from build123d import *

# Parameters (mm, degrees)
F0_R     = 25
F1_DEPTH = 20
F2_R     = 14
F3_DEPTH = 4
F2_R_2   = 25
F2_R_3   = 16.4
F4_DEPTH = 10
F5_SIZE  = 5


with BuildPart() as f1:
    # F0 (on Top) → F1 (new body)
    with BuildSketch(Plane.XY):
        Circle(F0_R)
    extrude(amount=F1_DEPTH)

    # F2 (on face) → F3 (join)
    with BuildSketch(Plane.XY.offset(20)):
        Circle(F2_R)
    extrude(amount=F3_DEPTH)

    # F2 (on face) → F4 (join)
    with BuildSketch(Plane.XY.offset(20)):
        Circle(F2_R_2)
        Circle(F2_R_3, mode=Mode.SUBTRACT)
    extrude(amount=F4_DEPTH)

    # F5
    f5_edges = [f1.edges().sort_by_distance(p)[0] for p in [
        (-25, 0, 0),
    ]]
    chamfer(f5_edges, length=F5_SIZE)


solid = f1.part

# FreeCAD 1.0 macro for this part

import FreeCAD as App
import Part
import Sketcher
Q = App.Units.Quantity


def edges_at(feature, points):
    """Names of the edges that pass closest to the given points."""
    edges = feature.Shape.Edges
    near = lambda p: min(range(len(edges)), key=lambda i: edges[i].distToShape(Part.Vertex(*p))[0])
    return sorted({f"Edge{near(p) + 1}" for p in points})

doc = App.newDocument("Part")
body = doc.addObject("PartDesign::Body", "Body")

sketch1 = body.newObject("Sketcher::SketchObject", "Sketch")
sketch1.AttachmentSupport = (doc.getObject("XY_Plane"), [""])
sketch1.MapMode = "FlatFace"
sketch1.addGeometry(Part.Circle(App.Vector(0, 0, 0), App.Vector(0, 0, 1), 25), False)
sketch1.addConstraint([
    Sketcher.Constraint("Coincident", 0, 3, -1, 1),
    Sketcher.Constraint("Diameter", 0, Q("50 mm")),
])
pad1 = body.newObject("PartDesign::Pad", "Pad")
pad1.Profile = sketch1
pad1.Length = 20

sketch2 = body.newObject("Sketcher::SketchObject", "Sketch001")
sketch2.AttachmentSupport = (doc.getObject("XY_Plane"), [""])
sketch2.MapMode = "FlatFace"
sketch2.AttachmentOffset = App.Placement(App.Vector(0, 0, 20), App.Rotation())
sketch2.addGeometry(Part.Circle(App.Vector(0, 0, 0), App.Vector(0, 0, 1), 14), False)
sketch2.addConstraint([
    Sketcher.Constraint("Coincident", 0, 3, -1, 1),
    Sketcher.Constraint("Diameter", 0, Q("28 mm")),
])
pad2 = body.newObject("PartDesign::Pad", "Pad001")
pad2.Profile = sketch2
pad2.Length = 4

sketch3 = body.newObject("Sketcher::SketchObject", "Sketch002")
sketch3.AttachmentSupport = (doc.getObject("XY_Plane"), [""])
sketch3.MapMode = "FlatFace"
sketch3.AttachmentOffset = App.Placement(App.Vector(0, 0, 20), App.Rotation())
sketch3.addGeometry([
    Part.Circle(App.Vector(0, 0, 0), App.Vector(0, 0, 1), 25),
    Part.Circle(App.Vector(0, 0, 0), App.Vector(0, 0, 1), 16),
], False)
sketch3.addConstraint([
    Sketcher.Constraint("Coincident", 0, 3, -1, 1),
    Sketcher.Constraint("Coincident", 1, 3, -1, 1),
    Sketcher.Constraint("Diameter", 0, Q("50 mm")),
    Sketcher.Constraint("Diameter", 1, Q("32.8 mm")),
])
pad3 = body.newObject("PartDesign::Pad", "Pad002")
pad3.Profile = sketch3
pad3.Length = 10
doc.recompute()

chamfer = body.newObject("PartDesign::Chamfer", "Chamfer")
chamfer.Base = (pad3, edges_at(pad3, [(-25, 0, 0)]))
chamfer.Size = 5

doc.recompute()
